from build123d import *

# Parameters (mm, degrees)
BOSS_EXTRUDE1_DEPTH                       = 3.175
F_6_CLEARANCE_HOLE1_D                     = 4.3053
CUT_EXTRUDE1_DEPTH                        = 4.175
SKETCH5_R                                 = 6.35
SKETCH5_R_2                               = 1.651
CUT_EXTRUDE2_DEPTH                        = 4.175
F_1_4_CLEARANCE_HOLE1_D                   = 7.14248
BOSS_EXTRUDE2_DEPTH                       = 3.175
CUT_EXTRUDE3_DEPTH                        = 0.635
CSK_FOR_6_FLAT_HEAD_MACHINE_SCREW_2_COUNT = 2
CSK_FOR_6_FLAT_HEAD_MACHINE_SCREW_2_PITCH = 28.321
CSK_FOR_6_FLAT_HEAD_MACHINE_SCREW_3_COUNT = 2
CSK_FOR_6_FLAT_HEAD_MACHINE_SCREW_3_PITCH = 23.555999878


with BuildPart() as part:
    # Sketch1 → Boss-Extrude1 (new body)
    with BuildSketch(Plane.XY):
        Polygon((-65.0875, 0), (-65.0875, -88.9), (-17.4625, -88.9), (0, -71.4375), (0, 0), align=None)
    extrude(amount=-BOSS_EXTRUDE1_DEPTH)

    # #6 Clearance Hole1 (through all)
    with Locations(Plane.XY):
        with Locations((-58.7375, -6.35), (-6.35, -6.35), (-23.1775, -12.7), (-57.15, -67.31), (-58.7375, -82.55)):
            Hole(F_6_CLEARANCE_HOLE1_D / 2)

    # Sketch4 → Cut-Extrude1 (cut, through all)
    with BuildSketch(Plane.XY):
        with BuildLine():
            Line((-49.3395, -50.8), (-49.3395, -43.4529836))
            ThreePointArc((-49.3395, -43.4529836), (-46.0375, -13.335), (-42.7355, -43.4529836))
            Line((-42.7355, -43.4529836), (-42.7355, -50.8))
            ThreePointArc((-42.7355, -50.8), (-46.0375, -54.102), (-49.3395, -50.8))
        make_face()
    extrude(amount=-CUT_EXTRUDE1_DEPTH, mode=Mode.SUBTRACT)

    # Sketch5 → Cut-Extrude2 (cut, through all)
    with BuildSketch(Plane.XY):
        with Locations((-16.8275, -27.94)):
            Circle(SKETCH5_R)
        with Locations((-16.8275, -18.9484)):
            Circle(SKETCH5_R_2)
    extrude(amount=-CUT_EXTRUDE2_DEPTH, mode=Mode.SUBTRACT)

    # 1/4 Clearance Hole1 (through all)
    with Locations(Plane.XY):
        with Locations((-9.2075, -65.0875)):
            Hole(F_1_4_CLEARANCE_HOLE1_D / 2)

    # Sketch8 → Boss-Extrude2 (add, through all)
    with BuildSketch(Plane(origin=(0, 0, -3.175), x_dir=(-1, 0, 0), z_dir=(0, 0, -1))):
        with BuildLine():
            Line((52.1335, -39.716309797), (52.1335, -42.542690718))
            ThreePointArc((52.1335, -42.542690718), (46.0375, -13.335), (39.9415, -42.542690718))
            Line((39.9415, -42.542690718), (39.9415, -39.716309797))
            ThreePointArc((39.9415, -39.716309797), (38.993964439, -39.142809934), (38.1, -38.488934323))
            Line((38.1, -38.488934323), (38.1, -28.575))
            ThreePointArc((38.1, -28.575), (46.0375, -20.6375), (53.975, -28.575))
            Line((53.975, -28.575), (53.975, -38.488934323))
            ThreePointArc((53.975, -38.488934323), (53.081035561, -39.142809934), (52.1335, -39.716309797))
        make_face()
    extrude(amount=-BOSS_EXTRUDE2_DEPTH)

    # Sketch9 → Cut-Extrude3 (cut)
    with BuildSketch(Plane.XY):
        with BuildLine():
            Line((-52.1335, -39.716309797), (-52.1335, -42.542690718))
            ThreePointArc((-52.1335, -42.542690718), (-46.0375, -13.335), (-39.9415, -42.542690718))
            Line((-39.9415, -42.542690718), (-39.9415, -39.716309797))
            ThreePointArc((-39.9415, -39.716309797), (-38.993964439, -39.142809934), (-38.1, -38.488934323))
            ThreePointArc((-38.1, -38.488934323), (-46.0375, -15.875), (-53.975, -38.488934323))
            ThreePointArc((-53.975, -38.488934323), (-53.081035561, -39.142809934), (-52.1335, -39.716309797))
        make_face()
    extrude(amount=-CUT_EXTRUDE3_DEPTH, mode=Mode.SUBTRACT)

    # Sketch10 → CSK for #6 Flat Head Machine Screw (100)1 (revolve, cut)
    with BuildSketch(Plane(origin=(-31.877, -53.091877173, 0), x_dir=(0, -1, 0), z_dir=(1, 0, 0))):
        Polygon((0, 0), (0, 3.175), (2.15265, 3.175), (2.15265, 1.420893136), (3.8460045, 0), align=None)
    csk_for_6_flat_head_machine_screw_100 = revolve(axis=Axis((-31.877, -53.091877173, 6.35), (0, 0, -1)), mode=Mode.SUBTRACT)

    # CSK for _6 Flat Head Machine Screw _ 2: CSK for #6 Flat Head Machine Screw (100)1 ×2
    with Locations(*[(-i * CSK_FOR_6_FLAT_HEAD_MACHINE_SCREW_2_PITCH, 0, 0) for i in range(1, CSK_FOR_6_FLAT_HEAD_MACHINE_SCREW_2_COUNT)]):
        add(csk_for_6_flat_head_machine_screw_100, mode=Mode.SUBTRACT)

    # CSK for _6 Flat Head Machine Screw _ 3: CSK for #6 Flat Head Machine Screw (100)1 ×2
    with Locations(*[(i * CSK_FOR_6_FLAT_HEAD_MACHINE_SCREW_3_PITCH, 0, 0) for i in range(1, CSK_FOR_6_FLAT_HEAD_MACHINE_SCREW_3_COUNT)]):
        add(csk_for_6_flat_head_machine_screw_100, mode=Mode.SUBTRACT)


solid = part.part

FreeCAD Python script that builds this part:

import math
import FreeCAD as App
import Part
import Sketcher
from FreeCAD import Vector
Q = App.Units.Quantity

doc = App.newDocument("Part")
params = doc.addObject("Spreadsheet::Sheet", "Params")
for row, (alias, value) in enumerate([
    ("sketch1_height", "3.5 in"),
    ("sketch1_width", "1.875 in"),
    ("sketch1_width2", "2.5625 in"),
    ("pad1_length", "0.125 in"),
    ("hole_diameter", "0.1695 in"),
    ("sketch3_radius", "0.6 in"),
    ("sketch3_radius2", "0.13 in"),
    ("sketch4_diameter", "0.5 in"),
    ("sketch4_diameter2", "0.13 in"),
    ("hole2_diameter", "0.2812 in"),
    ("sketch6_radius", "0.6 in"),
    ("sketch6_radius2", "0.5 in"),
    ("sketch6_radius3", "0.3125 in"),
    ("pad2_length", "0.125 in"),
    ("sketch7_radius", "0.5 in"),
    ("sketch7_radius2", "0.6 in"),
    ("pocket3_length", "0.025 in"),
    ("sketch8_height", "0.125 in"),
    ("groove_angle", "360 deg"),
    ("linearpattern_pitch", "1.115 in"),
    ("linearpattern2_pitch", "23.556 mm"),
], start=1):
    params.set(f"A{row}", alias)
    params.set(f"B{row}", "=" + value)
    params.setAlias(f"B{row}", alias)

body = doc.addObject("PartDesign::Body", "Body")

sketch1 = body.newObject("Sketcher::SketchObject", "Sketch")
sketch1.AttachmentSupport = (doc.getObject("XY_Plane"), [""])
sketch1.MapMode = "FlatFace"
sketch1.addGeometry(Part.LineSegment(Vector(-65, 0, 0), Vector(-65, -89, 0)), False)
sketch1.addGeometry(Part.LineSegment(Vector(-65, -89, 0), Vector(-17, -89, 0)), False)
sketch1.addGeometry(Part.LineSegment(Vector(-17, -89, 0), Vector(0, -71, 0)), False)
sketch1.addGeometry(Part.LineSegment(Vector(0, -71, 0), Vector(0, 0, 0)), False)
sketch1.addGeometry(Part.LineSegment(Vector(0, 0, 0), Vector(-65, 0, 0)), False)
sketch1.addConstraint(Sketcher.Constraint("Coincident", 0, 2, 1, 1))
sketch1.addConstraint(Sketcher.Constraint("Coincident", 1, 2, 2, 1))
sketch1.addConstraint(Sketcher.Constraint("Coincident", 2, 2, 3, 1))
sketch1.addConstraint(Sketcher.Constraint("Coincident", 3, 2, 4, 1))
sketch1.addConstraint(Sketcher.Constraint("Coincident", 4, 2, 0, 1))
sketch1.addConstraint(Sketcher.Constraint("Vertical", 0))
sketch1.addConstraint(Sketcher.Constraint("Horizontal", 1))
sketch1.addConstraint(Sketcher.Constraint("Vertical", 3))
sketch1.addConstraint(Sketcher.Constraint("Horizontal", 4))
sketch1.addConstraint(Sketcher.Constraint("Coincident", 3, 2, -1, 1))
sketch1.addConstraint(Sketcher.Constraint("DistanceY", 0, 2, 0, 1, Q("3.5 in")))
sketch1.addConstraint(Sketcher.Constraint("Angle", 2, Q("45 deg")))
sketch1.addConstraint(Sketcher.Constraint("DistanceX", 1, 1, 1, 2, Q("1.875 in")))
sketch1.addConstraint(Sketcher.Constraint("DistanceX", 4, 2, 4, 1, Q("2.5625 in")))
sketch1.setExpression("Constraints[10]", "Params.sketch1_height")
sketch1.setExpression("Constraints[12]", "Params.sketch1_width")
sketch1.setExpression("Constraints[13]", "Params.sketch1_width2")
pad1 = body.newObject("PartDesign::Pad", "Pad")
pad1.Profile = sketch1
pad1.setExpression("Length", "Params.pad1_length")
pad1.Reversed = True

sketch2 = body.newObject("Sketcher::SketchObject", "Sketch001")
sketch2.AttachmentSupport = (doc.getObject("XY_Plane"), [""])
sketch2.MapMode = "FlatFace"
sketch2.addGeometry(Part.Circle(Vector(-58.7, -6.3, 0), Vector(0, 0, 1), 2.2), False)
sketch2.addGeometry(Part.Circle(Vector(-6.3, -6.3, 0), Vector(0, 0, 1), 2.2), False)
sketch2.addGeometry(Part.Circle(Vector(-23.2, -12.7, 0), Vector(0, 0, 1), 2.2), False)
sketch2.addGeometry(Part.Circle(Vector(-57.1, -67.3, 0), Vector(0, 0, 1), 2.2), False)
sketch2.addGeometry(Part.Circle(Vector(-58.7, -82.5, 0), Vector(0, 0, 1), 2.2), False)
sketch2.addConstraint(Sketcher.Constraint("Equal", 0, 1))
sketch2.addConstraint(Sketcher.Constraint("Equal", 1, 2))
sketch2.addConstraint(Sketcher.Constraint("Equal", 2, 3))
sketch2.addConstraint(Sketcher.Constraint("Equal", 3, 4))
sketch2.addConstraint(Sketcher.Constraint("Horizontal", 0, 3, 1, 3))
sketch2.addConstraint(Sketcher.Constraint("Vertical", 0, 3, 4, 3))
sketch2.addConstraint(Sketcher.Constraint("DistanceX", 3, 3, 1, 3, Q("2 in")))
sketch2.addConstraint(Sketcher.Constraint("DistanceY", 4, 3, 0, 3, Q("3 in")))
sketch2.addConstraint(Sketcher.Constraint("Diameter", 0, Q("0.1695 in")))
sketch2.addConstraint(Sketcher.Constraint("DistanceY", 2, 3, -1, 1, Q("0.5 in")))
sketch2.addConstraint(Sketcher.Constraint("DistanceX", 0, 3, 2, 3, Q("1.4 in")))
sketch2.addConstraint(Sketcher.Constraint("DistanceY", 3, 3, 0, 3, Q("2.4 in")))
sketch2.addConstraint(Sketcher.Constraint("DistanceY", 0, 3, -1, 1, Q("0.25 in")))
sketch2.addConstraint(Sketcher.Constraint("DistanceX", 1, 3, -1, 1, Q("0.25 in")))
sketch2.addConstraint(Sketcher.Constraint("DistanceX", 0, 3, -1, 1, Q("2.3125 in")))
doc.recompute()
hole = body.newObject("PartDesign::Hole", "Hole")
hole.Profile = sketch2
hole.ThreadType = "None"
hole.setExpression("Diameter", "Params.hole_diameter")
hole.DepthType = "ThroughAll"

sketch3 = body.newObject("Sketcher::SketchObject", "Sketch002")
sketch3.AttachmentSupport = (doc.getObject("XY_Plane"), [""])
sketch3.MapMode = "FlatFace"
sketch3.addGeometry(Part.LineSegment(Vector(-49.3, -43.5, 0), Vector(-49.3, -50.8, 0)), False)
sketch3.addGeometry(Part.ArcOfCircle(Part.Circle(Vector(-46, -50.8, 0), Vector(0, 0, 1), 3.3), math.radians(180), math.radians(360)), False)
sketch3.addGeometry(Part.LineSegment(Vector(-42.7, -50.8, 0), Vector(-42.7, -43.5, 0)), False)
sketch3.addGeometry(Part.ArcOfCircle(Part.Circle(Vector(-46, -28.6, 0), Vector(0, 0, 1), 15.2), math.radians(-77), math.radians(257)), False)
sketch3.addConstraint(Sketcher.Constraint("Tangent", 0, 2, 1, 1))
sketch3.addConstraint(Sketcher.Constraint("Tangent", 1, 2, 2, 1))
sketch3.addConstraint(Sketcher.Constraint("Coincident", 2, 2, 3, 1))
sketch3.addConstraint(Sketcher.Constraint("Coincident", 3, 2, 0, 1))
sketch3.addConstraint(Sketcher.Constraint("Vertical", 0))
sketch3.addConstraint(Sketcher.Constraint("Vertical", 2))
sketch3.addConstraint(Sketcher.Constraint("Horizontal", 2, 2, 3, 2))
sketch3.addConstraint(Sketcher.Constraint("Radius", 3, Q("0.6 in")))
sketch3.addConstraint(Sketcher.Constraint("Radius", 1, Q("0.13 in")))
sketch3.addConstraint(Sketcher.Constraint("DistanceY", 1, 3, -1, 1, Q("2 in")))
sketch3.addConstraint(Sketcher.Constraint("DistanceX", 1, 3, -1, 1, Q("1.8125 in")))
sketch3.addConstraint(Sketcher.Constraint("DistanceY", 3, 3, -1, 1, Q("1.125 in")))
sketch3.setExpression("Constraints[7]", "Params.sketch3_radius")
sketch3.setExpression("Constraints[8]", "Params.sketch3_radius2")
pocket1 = body.newObject("PartDesign::Pocket", "Pocket")
pocket1.Profile = sketch3
pocket1.Type = "ThroughAll"

sketch4 = body.newObject("Sketcher::SketchObject", "Sketch003")
sketch4.AttachmentSupport = (doc.getObject("XY_Plane"), [""])
sketch4.MapMode = "FlatFace"
sketch4.addGeometry(Part.Circle(Vector(-16.8, -27.9, 0), Vector(0, 0, 1), 6.3), False)
sketch4.addGeometry(Part.Circle(Vector(-16.8, -18.9, 0), Vector(0, 0, 1), 1.7), False)
sketch4.addConstraint(Sketcher.Constraint("Vertical", 0, 3, 1, 3))
sketch4.addConstraint(Sketcher.Constraint("Diameter", 0, Q("0.5 in")))
sketch4.addConstraint(Sketcher.Constraint("Diameter", 1, Q("0.13 in")))
sketch4.addConstraint(Sketcher.Constraint("DistanceY", 0, 3, -1, 1, Q("1.1 in")))
sketch4.addConstraint(Sketcher.Constraint("DistanceY", 1, 3, -1, 1, Q("0.746 in")))
sketch4.addConstraint(Sketcher.Constraint("DistanceX", 0, 3, -1, 1, Q("0.6625 in")))
sketch4.setExpression("Constraints[1]", "Params.sketch4_diameter")
sketch4.setExpression("Constraints[2]", "Params.sketch4_diameter2")
pocket2 = body.newObject("PartDesign::Pocket", "Pocket001")
pocket2.Profile = sketch4
pocket2.Type = "ThroughAll"

sketch5 = body.newObject("Sketcher::SketchObject", "Sketch004")
sketch5.AttachmentSupport = (doc.getObject("XY_Plane"), [""])
sketch5.MapMode = "FlatFace"
sketch5.addGeometry(Part.Circle(Vector(-9.2, -65.1, 0), Vector(0, 0, 1), 3.6), False)
sketch5.addConstraint(Sketcher.Constraint("Diameter", 0, Q("0.2812 in")))
sketch5.addConstraint(Sketcher.Constraint("DistanceY", 0, 3, -1, 1, Q("2.5625 in")))
sketch5.addConstraint(Sketcher.Constraint("DistanceX", 0, 3, -1, 1, Q("0.3625 in")))
doc.recompute()
hole2 = body.newObject("PartDesign::Hole", "Hole001")
hole2.Profile = sketch5
hole2.ThreadType = "None"
hole2.setExpression("Diameter", "Params.hole2_diameter")
hole2.DepthType = "ThroughAll"

sketch6 = body.newObject("Sketcher::SketchObject", "Sketch005")
sketch6.AttachmentSupport = (doc.getObject("XY_Plane"), [""])
sketch6.MapMode = "FlatFace"
sketch6.AttachmentOffset = App.Placement(Vector(0, 0, -0.125 * 25.4), App.Rotation())
sketch6.addGeometry(Part.LineSegment(Vector(-52.1, -39.7, 0), Vector(-52.1, -42.5, 0)), False)
sketch6.addGeometry(Part.ArcOfCircle(Part.Circle(Vector(-46, -28.6, 0), Vector(0, 0, 1), 15.2), math.radians(-66), math.radians(246)), False)
sketch6.addGeometry(Part.LineSegment(Vector(-39.9, -42.5, 0), Vector(-39.9, -39.7, 0)), False)
sketch6.addGeometry(Part.ArcOfCircle(Part.Circle(Vector(-46, -28.6, 0), Vector(0, 0, 1), 12.7), math.radians(-61.31), math.radians(-51.32)), False)
sketch6.addGeometry(Part.LineSegment(Vector(-38.1, -38.5, 0), Vector(-38.1, -28.6, 0)), False)
sketch6.addGeometry(Part.ArcOfCircle(Part.Circle(Vector(-46, -28.6, 0), Vector(0, 0, 1), 7.9), math.radians(0), math.radians(180)), False)
sketch6.addGeometry(Part.LineSegment(Vector(-54, -28.6, 0), Vector(-54, -38.5, 0)), False)
sketch6.addGeometry(Part.ArcOfCircle(Part.Circle(Vector(-46, -28.6, 0), Vector(0, 0, 1), 12.7), math.radians(-128.68), math.radians(-118.69)), False)
sketch6.addConstraint(Sketcher.Constraint("Coincident", 0, 2, 1, 2))
sketch6.addConstraint(Sketcher.Constraint("Coincident", 1, 1, 2, 1))
sketch6.addConstraint(Sketcher.Constraint("Coincident", 2, 2, 3, 1))
sketch6.addConstraint(Sketcher.Constraint("Coincident", 3, 2, 4, 1))
sketch6.addConstraint(Sketcher.Constraint("Tangent", 4, 2, 5, 1))
sketch6.addConstraint(Sketcher.Constraint("Tangent", 5, 2, 6, 1))
sketch6.addConstraint(Sketcher.Constraint("Coincident", 6, 2, 7, 1))
sketch6.addConstraint(Sketcher.Constraint("Coincident", 7, 2, 0, 1))
sketch6.addConstraint(Sketcher.Constraint("Vertical", 0))
sketch6.addConstraint(Sketcher.Constraint("Vertical", 2))
sketch6.addConstraint(Sketcher.Constraint("Vertical", 4))
sketch6.addConstraint(Sketcher.Constraint("Vertical", 6))
sketch6.addConstraint(Sketcher.Constraint("Coincident", 3, 3, 1, 3))
sketch6.addConstraint(Sketcher.Constraint("Coincident", 5, 3, 1, 3))
sketch6.addConstraint(Sketcher.Constraint("Coincident", 7, 3, 1, 3))
sketch6.addConstraint(Sketcher.Constraint("Equal", 3, 7))
sketch6.addConstraint(Sketcher.Constraint("Horizontal", 0, 2, 1, 1))
sketch6.addConstraint(Sketcher.Constraint("Radius", 1, Q("0.6 in")))
sketch6.addConstraint(Sketcher.Constraint("Radius", 3, Q("0.5 in")))
sketch6.addConstraint(Sketcher.Constraint("Radius", 5, Q("0.3125 in")))
sketch6.addConstraint(Sketcher.Constraint("DistanceX", 3, 2, -1, 1, Q("1.5 in")))
sketch6.addConstraint(Sketcher.Constraint("DistanceX", 0, 2, 1, 3, Q("0.24 in")))
sketch6.addConstraint(Sketcher.Constraint("DistanceY", 1, 3, -1, 1, Q("1.125 in")))
sketch6.setExpression("Constraints[17]", "Params.sketch6_radius")
sketch6.setExpression("Constraints[18]", "Params.sketch6_radius2")
sketch6.setExpression("Constraints[19]", "Params.sketch6_radius3")
pad2 = body.newObject("PartDesign::Pad", "Pad001")
pad2.Profile = sketch6
pad2.setExpression("Length", "Params.pad2_length")

sketch7 = body.newObject("Sketcher::SketchObject", "Sketch006")
sketch7.AttachmentSupport = (doc.getObject("XY_Plane"), [""])
sketch7.MapMode = "FlatFace"
sketch7.addGeometry(Part.LineSegment(Vector(-52.1, -42.5, 0), Vector(-52.1, -39.7, 0)), False)
sketch7.addGeometry(Part.ArcOfCircle(Part.Circle(Vector(-46, -28.6, 0), Vector(0, 0, 1), 12.7), math.radians(-128.68), math.radians(-118.69)), False)
sketch7.addGeometry(Part.ArcOfCircle(Part.Circle(Vector(-46, -28.6, 0), Vector(0, 0, 1), 12.7), math.radians(-51), math.radians(231)), False)
sketch7.addGeometry(Part.ArcOfCircle(Part.Circle(Vector(-46, -28.6, 0), Vector(0, 0, 1), 12.7), math.radians(-61.31), math.radians(-51.32)), False)
sketch7.addGeometry(Part.LineSegment(Vector(-39.9, -39.7, 0), Vector(-39.9, -42.5, 0)), False)
sketch7.addGeometry(Part.ArcOfCircle(Part.Circle(Vector(-46, -28.6, 0), Vector(0, 0, 1), 15.2), math.radians(-66), math.radians(246)), False)
sketch7.addConstraint(Sketcher.Constraint("Coincident", 0, 2, 1, 2))
sketch7.addConstraint(Sketcher.Constraint("Tangent", 1, 1, 2, 2))
sketch7.addConstraint(Sketcher.Constraint("Tangent", 2, 1, 3, 2))
sketch7.addConstraint(Sketcher.Constraint("Coincident", 3, 1, 4, 1))
sketch7.addConstraint(Sketcher.Constraint("Coincident", 4, 2, 5, 1))
sketch7.addConstraint(Sketcher.Constraint("Coincident", 5, 2, 0, 1))
sketch7.addConstraint(Sketcher.Constraint("Vertical", 0))
sketch7.addConstraint(Sketcher.Constraint("Vertical", 4))
sketch7.addConstraint(Sketcher.Constraint("Coincident", 3, 3, 1, 3))
sketch7.addConstraint(Sketcher.Constraint("Coincident", 5, 3, 1, 3))
sketch7.addConstraint(Sketcher.Constraint("Horizontal", 1, 1, 2, 1))
sketch7.addConstraint(Sketcher.Constraint("Horizontal", 0, 2, 3, 1))
sketch7.addConstraint(Sketcher.Constraint("Radius", 1, Q("0.5 in")))
sketch7.addConstraint(Sketcher.Constraint("Radius", 5, Q("0.6 in")))
sketch7.addConstraint(Sketcher.Constraint("DistanceX", 2, 1, -1, 1, Q("1.5 in")))
sketch7.addConstraint(Sketcher.Constraint("DistanceX", 0, 2, 2, 3, Q("0.24 in")))
sketch7.addConstraint(Sketcher.Constraint("DistanceX", 1, 3, -1, 1, Q("1.8125 in")))
sketch7.addConstraint(Sketcher.Constraint("DistanceY", 1, 3, -1, 1, Q("1.125 in")))
sketch7.setExpression("Constraints[12]", "Params.sketch7_radius")
sketch7.setExpression("Constraints[13]", "Params.sketch7_radius2")
pocket3 = body.newObject("PartDesign::Pocket", "Pocket002")
pocket3.Profile = sketch7
pocket3.setExpression("Length", "Params.pocket3_length")

sketch8 = body.newObject("Sketcher::SketchObject", "Sketch007")
sketch8.AttachmentSupport = (doc.getObject("YZ_Plane"), [""])
sketch8.MapMode = "FlatFace"
sketch8.AttachmentOffset = App.Placement(Vector(0, 0, -1.255 * 25.4), App.Rotation())
sketch8.addGeometry(Part.LineSegment(Vector(-53.1, -3.2, 0), Vector(-53.1, 0, 0)), False)
sketch8.addGeometry(Part.LineSegment(Vector(-53.1, 0, 0), Vector(-56.9, 0, 0)), False)
sketch8.addGeometry(Part.LineSegment(Vector(-56.9, 0, 0), Vector(-55.2, -1.4, 0)), False)
sketch8.addGeometry(Part.LineSegment(Vector(-55.2, -1.4, 0), Vector(-55.2, -3.2, 0)), False)
sketch8.addGeometry(Part.LineSegment(Vector(-55.2, -3.2, 0), Vector(-53.1, -3.2, 0)), False)
sketch8.addGeometry(Part.LineSegment(Vector(-53.1, 0, 0), Vector(-53.1, -3.2, 0)), True)
sketch8.addConstraint(Sketcher.Constraint("Coincident", 0, 2, 1, 1))
sketch8.addConstraint(Sketcher.Constraint("Coincident", 1, 2, 2, 1))
sketch8.addConstraint(Sketcher.Constraint("Coincident", 2, 2, 3, 1))
sketch8.addConstraint(Sketcher.Constraint("Coincident", 3, 2, 4, 1))
sketch8.addConstraint(Sketcher.Constraint("Coincident", 4, 2, 0, 1))
sketch8.addConstraint(Sketcher.Constraint("Vertical", 0))
sketch8.addConstraint(Sketcher.Constraint("Horizontal", 1))
sketch8.addConstraint(Sketcher.Constraint("Vertical", 3))
sketch8.addConstraint(Sketcher.Constraint("Horizontal", 4))
sketch8.addConstraint(Sketcher.Constraint("Vertical", 5))
sketch8.addConstraint(Sketcher.Constraint("Coincident", 5, 1, 0, 2))
sketch8.addConstraint(Sketcher.Constraint("PointOnObject", 0, 2, -1))
sketch8.addConstraint(Sketcher.Constraint("Horizontal", 3, 2, 5, 2))
sketch8.addConstraint(Sketcher.Constraint("Angle", 2, Q("-40 deg")))
sketch8.addConstraint(Sketcher.Constraint("DistanceY", 0, 1, 0, 2, Q("0.125 in")))
sketch8.addConstraint(Sketcher.Constraint("DistanceX", 4, 1, 4, 2, 2.15265))
sketch8.addConstraint(Sketcher.Constraint("DistanceX", 1, 2, 1, 1, 3.846004))
sketch8.addConstraint(Sketcher.Constraint("DistanceX", 1, 2, -1, 1, 56.937882))
sketch8.setExpression("Constraints[14]", "Params.sketch8_height")
groove = body.newObject("PartDesign::Groove", "Groove")
groove.Profile = sketch8
groove.ReferenceAxis = (sketch8, ["Axis0"])
groove.setExpression("Angle", "Params.groove_angle")
doc.recompute()

linearpattern = body.newObject("PartDesign::LinearPattern", "LinearPattern")
linearpattern.Originals = [groove]
linearpattern.Direction = (doc.getObject("X_Axis"), [""])
linearpattern.Mode = "offset"
linearpattern.setExpression("Offset", "Params.linearpattern_pitch")
linearpattern.Occurrences = 2
linearpattern.Reversed = True
body.Tip = linearpattern
doc.recompute()

linearpattern2 = body.newObject("PartDesign::LinearPattern", "LinearPattern001")
linearpattern2.Originals = [groove]
linearpattern2.Direction = (doc.getObject("X_Axis"), [""])
linearpattern2.Mode = "offset"
linearpattern2.setExpression("Offset", "Params.linearpattern2_pitch")
linearpattern2.Occurrences = 2
body.Tip = linearpattern2

doc.recompute()
